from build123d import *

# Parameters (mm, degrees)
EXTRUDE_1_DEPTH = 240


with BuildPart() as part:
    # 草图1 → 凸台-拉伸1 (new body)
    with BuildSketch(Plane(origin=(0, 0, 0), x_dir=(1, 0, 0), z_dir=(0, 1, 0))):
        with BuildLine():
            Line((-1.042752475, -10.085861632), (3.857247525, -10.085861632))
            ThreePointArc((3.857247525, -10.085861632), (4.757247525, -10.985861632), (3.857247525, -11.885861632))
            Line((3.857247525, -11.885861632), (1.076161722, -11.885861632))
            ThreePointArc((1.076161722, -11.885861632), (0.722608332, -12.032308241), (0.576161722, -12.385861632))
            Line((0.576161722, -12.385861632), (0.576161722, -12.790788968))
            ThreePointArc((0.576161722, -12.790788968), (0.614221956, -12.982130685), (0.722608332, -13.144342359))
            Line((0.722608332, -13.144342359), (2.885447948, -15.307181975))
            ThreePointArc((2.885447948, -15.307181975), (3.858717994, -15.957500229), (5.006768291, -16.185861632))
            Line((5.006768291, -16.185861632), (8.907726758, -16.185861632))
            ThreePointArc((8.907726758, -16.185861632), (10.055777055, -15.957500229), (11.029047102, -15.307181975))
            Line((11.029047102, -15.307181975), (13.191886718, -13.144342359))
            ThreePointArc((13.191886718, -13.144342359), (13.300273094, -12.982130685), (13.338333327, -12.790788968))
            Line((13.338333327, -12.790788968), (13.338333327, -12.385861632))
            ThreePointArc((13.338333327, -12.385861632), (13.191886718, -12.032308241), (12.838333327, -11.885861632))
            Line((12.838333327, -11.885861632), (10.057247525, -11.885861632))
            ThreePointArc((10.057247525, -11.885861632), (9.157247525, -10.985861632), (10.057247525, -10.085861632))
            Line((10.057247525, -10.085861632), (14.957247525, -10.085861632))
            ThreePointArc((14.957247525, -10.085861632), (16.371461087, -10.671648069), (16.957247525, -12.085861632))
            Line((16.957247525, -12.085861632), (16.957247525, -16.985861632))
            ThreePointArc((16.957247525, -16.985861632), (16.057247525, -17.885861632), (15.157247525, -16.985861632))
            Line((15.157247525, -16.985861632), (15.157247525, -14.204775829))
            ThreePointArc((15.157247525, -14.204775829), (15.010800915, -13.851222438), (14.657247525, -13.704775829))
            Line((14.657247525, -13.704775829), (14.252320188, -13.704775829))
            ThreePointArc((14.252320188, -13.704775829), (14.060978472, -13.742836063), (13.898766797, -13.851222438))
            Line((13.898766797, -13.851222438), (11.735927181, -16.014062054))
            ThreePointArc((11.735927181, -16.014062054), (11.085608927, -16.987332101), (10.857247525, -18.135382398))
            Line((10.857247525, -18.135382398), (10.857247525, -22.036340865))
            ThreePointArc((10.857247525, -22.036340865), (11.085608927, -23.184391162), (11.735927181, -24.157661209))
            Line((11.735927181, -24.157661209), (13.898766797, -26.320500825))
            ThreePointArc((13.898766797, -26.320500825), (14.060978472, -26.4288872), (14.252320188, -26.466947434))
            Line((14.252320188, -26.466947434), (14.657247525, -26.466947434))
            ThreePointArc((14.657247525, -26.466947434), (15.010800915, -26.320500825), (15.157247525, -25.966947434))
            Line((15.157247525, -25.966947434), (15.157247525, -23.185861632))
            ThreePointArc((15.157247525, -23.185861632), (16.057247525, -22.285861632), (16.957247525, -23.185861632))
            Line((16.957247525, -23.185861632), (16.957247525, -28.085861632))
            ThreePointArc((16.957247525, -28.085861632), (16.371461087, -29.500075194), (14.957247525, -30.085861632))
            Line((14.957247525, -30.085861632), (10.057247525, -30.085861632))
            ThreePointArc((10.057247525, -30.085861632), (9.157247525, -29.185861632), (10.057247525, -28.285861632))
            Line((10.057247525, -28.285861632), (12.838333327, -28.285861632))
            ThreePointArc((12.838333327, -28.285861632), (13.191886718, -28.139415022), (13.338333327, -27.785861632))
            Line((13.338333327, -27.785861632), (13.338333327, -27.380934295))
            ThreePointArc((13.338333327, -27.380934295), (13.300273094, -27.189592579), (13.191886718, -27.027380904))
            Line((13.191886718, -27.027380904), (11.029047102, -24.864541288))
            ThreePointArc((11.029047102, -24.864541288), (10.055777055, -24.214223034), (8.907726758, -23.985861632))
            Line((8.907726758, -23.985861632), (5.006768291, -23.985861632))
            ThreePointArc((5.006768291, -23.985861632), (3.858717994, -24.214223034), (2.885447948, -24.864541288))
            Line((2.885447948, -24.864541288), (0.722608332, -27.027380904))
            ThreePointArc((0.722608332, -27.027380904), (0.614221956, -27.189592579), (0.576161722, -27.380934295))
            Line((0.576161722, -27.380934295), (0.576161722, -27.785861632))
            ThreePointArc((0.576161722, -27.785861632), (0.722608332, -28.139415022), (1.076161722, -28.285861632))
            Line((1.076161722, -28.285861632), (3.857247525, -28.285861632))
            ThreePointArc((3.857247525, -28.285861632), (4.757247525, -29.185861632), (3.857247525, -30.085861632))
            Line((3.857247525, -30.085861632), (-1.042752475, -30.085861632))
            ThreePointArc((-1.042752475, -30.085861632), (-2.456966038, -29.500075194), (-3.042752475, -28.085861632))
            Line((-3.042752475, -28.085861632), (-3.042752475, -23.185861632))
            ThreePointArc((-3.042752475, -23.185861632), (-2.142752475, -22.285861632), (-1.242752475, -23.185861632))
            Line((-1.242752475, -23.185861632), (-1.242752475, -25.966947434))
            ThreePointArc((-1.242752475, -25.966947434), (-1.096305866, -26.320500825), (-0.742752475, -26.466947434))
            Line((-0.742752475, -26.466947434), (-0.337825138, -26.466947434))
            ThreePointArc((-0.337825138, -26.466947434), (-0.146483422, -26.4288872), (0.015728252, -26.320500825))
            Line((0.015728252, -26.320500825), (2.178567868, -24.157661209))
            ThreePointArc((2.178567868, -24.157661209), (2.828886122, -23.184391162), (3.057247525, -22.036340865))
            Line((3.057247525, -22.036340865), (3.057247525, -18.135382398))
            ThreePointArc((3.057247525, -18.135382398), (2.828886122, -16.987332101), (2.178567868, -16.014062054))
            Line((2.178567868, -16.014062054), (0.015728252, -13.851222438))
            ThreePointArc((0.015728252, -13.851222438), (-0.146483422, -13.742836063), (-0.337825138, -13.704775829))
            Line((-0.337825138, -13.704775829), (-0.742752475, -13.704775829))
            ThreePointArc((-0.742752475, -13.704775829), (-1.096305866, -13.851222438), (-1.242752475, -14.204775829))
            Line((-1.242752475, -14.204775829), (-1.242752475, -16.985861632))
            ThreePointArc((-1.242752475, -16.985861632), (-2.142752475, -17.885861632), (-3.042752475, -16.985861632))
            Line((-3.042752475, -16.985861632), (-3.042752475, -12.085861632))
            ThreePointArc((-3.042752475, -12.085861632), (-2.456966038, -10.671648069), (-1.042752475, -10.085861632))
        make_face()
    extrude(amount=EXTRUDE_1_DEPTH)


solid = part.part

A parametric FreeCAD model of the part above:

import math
import FreeCAD as App
import Part
import Sketcher
from FreeCAD import Vector

doc = App.newDocument("Part")
body = doc.addObject("PartDesign::Body", "Body")

# Sketch on XZ plane
sketch1 = body.newObject("Sketcher::SketchObject", "Sketch")
sketch1.AttachmentSupport = (doc.getObject("XZ_Plane"), [""])
sketch1.MapMode = "FlatFace"
sketch1.addGeometry(Part.LineSegment(Vector(3.86, 10.09, 0), Vector(-1.04, 10.09, 0)), False)
sketch1.addGeometry(Part.ArcOfCircle(Part.Circle(Vector(-1.04, 12.09, 0), Vector(0, 0, 1), 2), math.radians(180), math.radians(270)), False)
sketch1.addGeometry(Part.LineSegment(Vector(-3.04, 12.09, 0), Vector(-3.04, 16.99, 0)), False)
sketch1.addGeometry(Part.ArcOfCircle(Part.Circle(Vector(-2.14, 16.99, 0), Vector(0, 0, 1), 0.9), math.radians(0), math.radians(180)), False)
sketch1.addGeometry(Part.LineSegment(Vector(-1.24, 16.99, 0), Vector(-1.24, 14.2, 0)), False)
sketch1.addGeometry(Part.ArcOfCircle(Part.Circle(Vector(-0.74, 14.2, 0), Vector(0, 0, 1), 0.5), math.radians(180), math.radians(270)), False)
sketch1.addGeometry(Part.LineSegment(Vector(-0.74, 13.7, 0), Vector(-0.34, 13.7, 0)), False)
sketch1.addGeometry(Part.ArcOfCircle(Part.Circle(Vector(-0.34, 14.2, 0), Vector(0, 0, 1), 0.5), math.radians(-90), math.radians(-45)), False)
sketch1.addGeometry(Part.LineSegment(Vector(0.02, 13.85, 0), Vector(2.18, 16.01, 0)), False)
sketch1.addGeometry(Part.ArcOfCircle(Part.Circle(Vector(0.06, 18.14, 0), Vector(0, 0, 1), 3), math.radians(-45), math.radians(0)), False)
sketch1.addGeometry(Part.LineSegment(Vector(3.06, 18.14, 0), Vector(3.06, 22.04, 0)), False)
sketch1.addGeometry(Part.ArcOfCircle(Part.Circle(Vector(0.06, 22.04, 0), Vector(0, 0, 1), 3), math.radians(0), math.radians(45)), False)
sketch1.addGeometry(Part.LineSegment(Vector(2.18, 24.16, 0), Vector(0.02, 26.32, 0)), False)
sketch1.addGeometry(Part.ArcOfCircle(Part.Circle(Vector(-0.34, 25.97, 0), Vector(0, 0, 1), 0.5), math.radians(45), math.radians(90)), False)
sketch1.addGeometry(Part.LineSegment(Vector(-0.34, 26.47, 0), Vector(-0.74, 26.47, 0)), False)
sketch1.addGeometry(Part.ArcOfCircle(Part.Circle(Vector(-0.74, 25.97, 0), Vector(0, 0, 1), 0.5), math.radians(90), math.radians(180)), False)
sketch1.addGeometry(Part.LineSegment(Vector(-1.24, 25.97, 0), Vector(-1.24, 23.19, 0)), False)
sketch1.addGeometry(Part.ArcOfCircle(Part.Circle(Vector(-2.14, 23.19, 0), Vector(0, 0, 1), 0.9), math.radians(180), math.radians(360)), False)
sketch1.addGeometry(Part.LineSegment(Vector(-3.04, 23.19, 0), Vector(-3.04, 28.09, 0)), False)
sketch1.addGeometry(Part.ArcOfCircle(Part.Circle(Vector(-1.04, 28.09, 0), Vector(0, 0, 1), 2), math.radians(90), math.radians(180)), False)
sketch1.addGeometry(Part.LineSegment(Vector(-1.04, 30.09, 0), Vector(3.86, 30.09, 0)), False)
sketch1.addGeometry(Part.ArcOfCircle(Part.Circle(Vector(3.86, 29.19, 0), Vector(0, 0, 1), 0.9), math.radians(-90), math.radians(90)), False)
sketch1.addGeometry(Part.LineSegment(Vector(3.86, 28.29, 0), Vector(1.08, 28.29, 0)), False)
sketch1.addGeometry(Part.ArcOfCircle(Part.Circle(Vector(1.08, 27.79, 0), Vector(0, 0, 1), 0.5), math.radians(90), math.radians(180)), False)
sketch1.addGeometry(Part.LineSegment(Vector(0.58, 27.79, 0), Vector(0.58, 27.38, 0)), False)
sketch1.addGeometry(Part.ArcOfCircle(Part.Circle(Vector(1.08, 27.38, 0), Vector(0, 0, 1), 0.5), math.radians(-180), math.radians(-135)), False)
sketch1.addGeometry(Part.LineSegment(Vector(0.72, 27.03, 0), Vector(2.89, 24.86, 0)), False)
sketch1.addGeometry(Part.ArcOfCircle(Part.Circle(Vector(5.01, 26.99, 0), Vector(0, 0, 1), 3), math.radians(-135), math.radians(-90)), False)
sketch1.addGeometry(Part.LineSegment(Vector(5.01, 23.99, 0), Vector(8.91, 23.99, 0)), False)
sketch1.addGeometry(Part.ArcOfCircle(Part.Circle(Vector(8.91, 26.99, 0), Vector(0, 0, 1), 3), math.radians(-90), math.radians(-45)), False)
sketch1.addGeometry(Part.LineSegment(Vector(11.03, 24.86, 0), Vector(13.19, 27.03, 0)), False)
sketch1.addGeometry(Part.ArcOfCircle(Part.Circle(Vector(12.84, 27.38, 0), Vector(0, 0, 1), 0.5), math.radians(-45), math.radians(0)), False)
sketch1.addGeometry(Part.LineSegment(Vector(13.34, 27.38, 0), Vector(13.34, 27.79, 0)), False)
sketch1.addGeometry(Part.ArcOfCircle(Part.Circle(Vector(12.84, 27.79, 0), Vector(0, 0, 1), 0.5), math.radians(0), math.radians(90)), False)
sketch1.addGeometry(Part.LineSegment(Vector(12.84, 28.29, 0), Vector(10.06, 28.29, 0)), False)
sketch1.addGeometry(Part.ArcOfCircle(Part.Circle(Vector(10.06, 29.19, 0), Vector(0, 0, 1), 0.9), math.radians(90), math.radians(270)), False)
sketch1.addGeometry(Part.LineSegment(Vector(10.06, 30.09, 0), Vector(14.96, 30.09, 0)), False)
sketch1.addGeometry(Part.ArcOfCircle(Part.Circle(Vector(14.96, 28.09, 0), Vector(0, 0, 1), 2), math.radians(0), math.radians(90)), False)
sketch1.addGeometry(Part.LineSegment(Vector(16.96, 28.09, 0), Vector(16.96, 23.19, 0)), False)
sketch1.addGeometry(Part.ArcOfCircle(Part.Circle(Vector(16.06, 23.19, 0), Vector(0, 0, 1), 0.9), math.radians(180), math.radians(360)), False)
sketch1.addGeometry(Part.LineSegment(Vector(15.16, 23.19, 0), Vector(15.16, 25.97, 0)), False)
sketch1.addGeometry(Part.ArcOfCircle(Part.Circle(Vector(14.66, 25.97, 0), Vector(0, 0, 1), 0.5), math.radians(0), math.radians(90)), False)
sketch1.addGeometry(Part.LineSegment(Vector(14.66, 26.47, 0), Vector(14.25, 26.47, 0)), False)
sketch1.addGeometry(Part.ArcOfCircle(Part.Circle(Vector(14.25, 25.97, 0), Vector(0, 0, 1), 0.5), math.radians(90), math.radians(135)), False)
sketch1.addGeometry(Part.LineSegment(Vector(13.9, 26.32, 0), Vector(11.74, 24.16, 0)), False)
sketch1.addGeometry(Part.ArcOfCircle(Part.Circle(Vector(13.86, 22.04, 0), Vector(0, 0, 1), 3), math.radians(135), math.radians(180)), False)
sketch1.addGeometry(Part.LineSegment(Vector(10.86, 22.04, 0), Vector(10.86, 18.14, 0)), False)
sketch1.addGeometry(Part.ArcOfCircle(Part.Circle(Vector(13.86, 18.14, 0), Vector(0, 0, 1), 3), math.radians(180), math.radians(225)), False)
sketch1.addGeometry(Part.LineSegment(Vector(11.74, 16.01, 0), Vector(13.9, 13.85, 0)), False)
sketch1.addGeometry(Part.ArcOfCircle(Part.Circle(Vector(14.25, 14.2, 0), Vector(0, 0, 1), 0.5), math.radians(-135), math.radians(-90)), False)
sketch1.addGeometry(Part.LineSegment(Vector(14.25, 13.7, 0), Vector(14.66, 13.7, 0)), False)
sketch1.addGeometry(Part.ArcOfCircle(Part.Circle(Vector(14.66, 14.2, 0), Vector(0, 0, 1), 0.5), math.radians(-90), math.radians(0)), False)
sketch1.addGeometry(Part.LineSegment(Vector(15.16, 14.2, 0), Vector(15.16, 16.99, 0)), False)
sketch1.addGeometry(Part.ArcOfCircle(Part.Circle(Vector(16.06, 16.99, 0), Vector(0, 0, 1), 0.9), math.radians(0), math.radians(180)), False)
sketch1.addGeometry(Part.LineSegment(Vector(16.96, 16.99, 0), Vector(16.96, 12.09, 0)), False)
sketch1.addGeometry(Part.ArcOfCircle(Part.Circle(Vector(14.96, 12.09, 0), Vector(0, 0, 1), 2), math.radians(-90), math.radians(0)), False)
sketch1.addGeometry(Part.LineSegment(Vector(14.96, 10.09, 0), Vector(10.06, 10.09, 0)), False)
sketch1.addGeometry(Part.ArcOfCircle(Part.Circle(Vector(10.06, 10.99, 0), Vector(0, 0, 1), 0.9), math.radians(90), math.radians(270)), False)
sketch1.addGeometry(Part.LineSegment(Vector(10.06, 11.89, 0), Vector(12.84, 11.89, 0)), False)
sketch1.addGeometry(Part.ArcOfCircle(Part.Circle(Vector(12.84, 12.39, 0), Vector(0, 0, 1), 0.5), math.radians(-90), math.radians(0)), False)
sketch1.addGeometry(Part.LineSegment(Vector(13.34, 12.39, 0), Vector(13.34, 12.79, 0)), False)
sketch1.addGeometry(Part.ArcOfCircle(Part.Circle(Vector(12.84, 12.79, 0), Vector(0, 0, 1), 0.5), math.radians(0), math.radians(45)), False)
sketch1.addGeometry(Part.LineSegment(Vector(13.19, 13.14, 0), Vector(11.03, 15.31, 0)), False)
sketch1.addGeometry(Part.ArcOfCircle(Part.Circle(Vector(8.91, 13.19, 0), Vector(0, 0, 1), 3), math.radians(45), math.radians(90)), False)
sketch1.addGeometry(Part.LineSegment(Vector(8.91, 16.19, 0), Vector(5.01, 16.19, 0)), False)
sketch1.addGeometry(Part.ArcOfCircle(Part.Circle(Vector(5.01, 13.19, 0), Vector(0, 0, 1), 3), math.radians(90), math.radians(135)), False)
sketch1.addGeometry(Part.LineSegment(Vector(2.89, 15.31, 0), Vector(0.72, 13.14, 0)), False)
sketch1.addGeometry(Part.ArcOfCircle(Part.Circle(Vector(1.08, 12.79, 0), Vector(0, 0, 1), 0.5), math.radians(135), math.radians(180)), False)
sketch1.addGeometry(Part.LineSegment(Vector(0.58, 12.79, 0), Vector(0.58, 12.39, 0)), False)
sketch1.addGeometry(Part.ArcOfCircle(Part.Circle(Vector(1.08, 12.39, 0), Vector(0, 0, 1), 0.5), math.radians(180), math.radians(270)), False)
sketch1.addGeometry(Part.LineSegment(Vector(1.08, 11.89, 0), Vector(3.86, 11.89, 0)), False)
sketch1.addGeometry(Part.ArcOfCircle(Part.Circle(Vector(3.86, 10.99, 0), Vector(0, 0, 1), 0.9), math.radians(-90), math.radians(90)), False)
sketch1.addConstraint(Sketcher.Constraint("Tangent", 0, 2, 1, 2))
sketch1.addConstraint(Sketcher.Constraint("Tangent", 1, 1, 2, 1))
sketch1.addConstraint(Sketcher.Constraint("Tangent", 2, 2, 3, 2))
sketch1.addConstraint(Sketcher.Constraint("Tangent", 3, 1, 4, 1))
sketch1.addConstraint(Sketcher.Constraint("Tangent", 4, 2, 5, 1))
sketch1.addConstraint(Sketcher.Constraint("Tangent", 5, 2, 6, 1))
sketch1.addConstraint(Sketcher.Constraint("Tangent", 6, 2, 7, 1))
sketch1.addConstraint(Sketcher.Constraint("Tangent", 7, 2, 8, 1))
sketch1.addConstraint(Sketcher.Constraint("Tangent", 8, 2, 9, 1))
sketch1.addConstraint(Sketcher.Constraint("Tangent", 9, 2, 10, 1))
sketch1.addConstraint(Sketcher.Constraint("Tangent", 10, 2, 11, 1))
sketch1.addConstraint(Sketcher.Constraint("Tangent", 11, 2, 12, 1))
sketch1.addConstraint(Sketcher.Constraint("Tangent", 12, 2, 13, 1))
sketch1.addConstraint(Sketcher.Constraint("Tangent", 13, 2, 14, 1))
sketch1.addConstraint(Sketcher.Constraint("Tangent", 14, 2, 15, 1))
sketch1.addConstraint(Sketcher.Constraint("Tangent", 15, 2, 16, 1))
sketch1.addConstraint(Sketcher.Constraint("Tangent", 16, 2, 17, 2))
sketch1.addConstraint(Sketcher.Constraint("Tangent", 17, 1, 18, 1))
sketch1.addConstraint(Sketcher.Constraint("Tangent", 18, 2, 19, 2))
sketch1.addConstraint(Sketcher.Constraint("Tangent", 19, 1, 20, 1))
sketch1.addConstraint(Sketcher.Constraint("Tangent", 20, 2, 21, 2))
sketch1.addConstraint(Sketcher.Constraint("Tangent", 21, 1, 22, 1))
sketch1.addConstraint(Sketcher.Constraint("Tangent", 22, 2, 23, 1))
sketch1.addConstraint(Sketcher.Constraint("Tangent", 23, 2, 24, 1))
sketch1.addConstraint(Sketcher.Constraint("Tangent", 24, 2, 25, 1))
sketch1.addConstraint(Sketcher.Constraint("Tangent", 25, 2, 26, 1))
sketch1.addConstraint(Sketcher.Constraint("Tangent", 26, 2, 27, 1))
sketch1.addConstraint(Sketcher.Constraint("Tangent", 27, 2, 28, 1))
sketch1.addConstraint(Sketcher.Constraint("Tangent", 28, 2, 29, 1))
sketch1.addConstraint(Sketcher.Constraint("Tangent", 29, 2, 30, 1))
sketch1.addConstraint(Sketcher.Constraint("Tangent", 30, 2, 31, 1))
sketch1.addConstraint(Sketcher.Constraint("Tangent", 31, 2, 32, 1))
sketch1.addConstraint(Sketcher.Constraint("Tangent", 32, 2, 33, 1))
sketch1.addConstraint(Sketcher.Constraint("Tangent", 33, 2, 34, 1))
sketch1.addConstraint(Sketcher.Constraint("Tangent", 34, 2, 35, 2))
sketch1.addConstraint(Sketcher.Constraint("Tangent", 35, 1, 36, 1))
sketch1.addConstraint(Sketcher.Constraint("Tangent", 36, 2, 37, 2))
sketch1.addConstraint(Sketcher.Constraint("Tangent", 37, 1, 38, 1))
sketch1.addConstraint(Sketcher.Constraint("Tangent", 38, 2, 39, 2))
sketch1.addConstraint(Sketcher.Constraint("Tangent", 39, 1, 40, 1))
sketch1.addConstraint(Sketcher.Constraint("Tangent", 40, 2, 41, 1))
sketch1.addConstraint(Sketcher.Constraint("Tangent", 41, 2, 42, 1))
sketch1.addConstraint(Sketcher.Constraint("Tangent", 42, 2, 43, 1))
sketch1.addConstraint(Sketcher.Constraint("Tangent", 43, 2, 44, 1))
sketch1.addConstraint(Sketcher.Constraint("Tangent", 44, 2, 45, 1))
sketch1.addConstraint(Sketcher.Constraint("Tangent", 45, 2, 46, 1))
sketch1.addConstraint(Sketcher.Constraint("Tangent", 46, 2, 47, 1))
sketch1.addConstraint(Sketcher.Constraint("Tangent", 47, 2, 48, 1))
sketch1.addConstraint(Sketcher.Constraint("Tangent", 48, 2, 49, 1))
sketch1.addConstraint(Sketcher.Constraint("Tangent", 49, 2, 50, 1))
sketch1.addConstraint(Sketcher.Constraint("Tangent", 50, 2, 51, 1))
sketch1.addConstraint(Sketcher.Constraint("Tangent", 51, 2, 52, 1))
sketch1.addConstraint(Sketcher.Constraint("Tangent", 52, 2, 53, 2))
sketch1.addConstraint(Sketcher.Constraint("Tangent", 53, 1, 54, 1))
sketch1.addConstraint(Sketcher.Constraint("Tangent", 54, 2, 55, 2))
sketch1.addConstraint(Sketcher.Constraint("Tangent", 55, 1, 56, 1))
sketch1.addConstraint(Sketcher.Constraint("Tangent", 56, 2, 57, 2))
sketch1.addConstraint(Sketcher.Constraint("Tangent", 57, 1, 58, 1))
sketch1.addConstraint(Sketcher.Constraint("Tangent", 58, 2, 59, 1))
sketch1.addConstraint(Sketcher.Constraint("Tangent", 59, 2, 60, 1))
sketch1.addConstraint(Sketcher.Constraint("Tangent", 60, 2, 61, 1))
sketch1.addConstraint(Sketcher.Constraint("Tangent", 61, 2, 62, 1))
sketch1.addConstraint(Sketcher.Constraint("Tangent", 62, 2, 63, 1))
sketch1.addConstraint(Sketcher.Constraint("Tangent", 63, 2, 64, 1))
sketch1.addConstraint(Sketcher.Constraint("Tangent", 64, 2, 65, 1))
sketch1.addConstraint(Sketcher.Constraint("Tangent", 65, 2, 66, 1))
sketch1.addConstraint(Sketcher.Constraint("Tangent", 66, 2, 67, 1))
sketch1.addConstraint(Sketcher.Constraint("Tangent", 67, 2, 68, 1))
sketch1.addConstraint(Sketcher.Constraint("Tangent", 68, 2, 69, 1))
sketch1.addConstraint(Sketcher.Constraint("Tangent", 69, 2, 70, 1))
sketch1.addConstraint(Sketcher.Constraint("Tangent", 70, 2, 71, 2))
sketch1.addConstraint(Sketcher.Constraint("Tangent", 71, 1, 0, 1))
sketch1.addConstraint(Sketcher.Constraint("Horizontal", 0))
sketch1.addConstraint(Sketcher.Constraint("Vertical", 2))
sketch1.addConstraint(Sketcher.Constraint("Vertical", 4))
sketch1.addConstraint(Sketcher.Constraint("Horizontal", 6))
sketch1.addConstraint(Sketcher.Constraint("Vertical", 10))
sketch1.addConstraint(Sketcher.Constraint("Horizontal", 14))
sketch1.addConstraint(Sketcher.Constraint("Vertical", 16))
sketch1.addConstraint(Sketcher.Constraint("Vertical", 18))
sketch1.addConstraint(Sketcher.Constraint("Horizontal", 20))
sketch1.addConstraint(Sketcher.Constraint("Horizontal", 22))
sketch1.addConstraint(Sketcher.Constraint("Vertical", 24))
sketch1.addConstraint(Sketcher.Constraint("Horizontal", 28))
sketch1.addConstraint(Sketcher.Constraint("Vertical", 32))
sketch1.addConstraint(Sketcher.Constraint("Horizontal", 34))
sketch1.addConstraint(Sketcher.Constraint("Horizontal", 36))
sketch1.addConstraint(Sketcher.Constraint("Vertical", 38))
sketch1.addConstraint(Sketcher.Constraint("Vertical", 40))
sketch1.addConstraint(Sketcher.Constraint("Horizontal", 42))
sketch1.addConstraint(Sketcher.Constraint("Vertical", 46))
sketch1.addConstraint(Sketcher.Constraint("Horizontal", 50))
sketch1.addConstraint(Sketcher.Constraint("Vertical", 52))
sketch1.addConstraint(Sketcher.Constraint("Vertical", 54))
sketch1.addConstraint(Sketcher.Constraint("Horizontal", 56))
sketch1.addConstraint(Sketcher.Constraint("Horizontal", 58))
sketch1.addConstraint(Sketcher.Constraint("Vertical", 60))
sketch1.addConstraint(Sketcher.Constraint("Horizontal", 64))
sketch1.addConstraint(Sketcher.Constraint("Vertical", 68))
sketch1.addConstraint(Sketcher.Constraint("Horizontal", 70))
sketch1.addConstraint(Sketcher.Constraint("Equal", 5, 7))
sketch1.addConstraint(Sketcher.Constraint("Equal", 9, 11))
sketch1.addConstraint(Sketcher.Constraint("Equal", 7, 13))
sketch1.addConstraint(Sketcher.Constraint("Equal", 13, 15))
sketch1.addConstraint(Sketcher.Constraint("Equal", 3, 17))
sketch1.addConstraint(Sketcher.Constraint("Equal", 1, 19))
sketch1.addConstraint(Sketcher.Constraint("Equal", 17, 21))
sketch1.addConstraint(Sketcher.Constraint("Equal", 15, 23))
sketch1.addConstraint(Sketcher.Constraint("Equal", 23, 25))
sketch1.addConstraint(Sketcher.Constraint("Equal", 11, 27))
sketch1.addConstraint(Sketcher.Constraint("Equal", 27, 29))
sketch1.addConstraint(Sketcher.Constraint("Equal", 25, 31))
sketch1.addConstraint(Sketcher.Constraint("Equal", 31, 33))
sketch1.addConstraint(Sketcher.Constraint("Equal", 21, 35))
sketch1.addConstraint(Sketcher.Constraint("Equal", 19, 37))
sketch1.addConstraint(Sketcher.Constraint("Equal", 35, 39))
sketch1.addConstraint(Sketcher.Constraint("Equal", 33, 41))
sketch1.addConstraint(Sketcher.Constraint("Equal", 41, 43))
sketch1.addConstraint(Sketcher.Constraint("Equal", 29, 45))
sketch1.addConstraint(Sketcher.Constraint("Equal", 45, 47))
sketch1.addConstraint(Sketcher.Constraint("Equal", 43, 49))
sketch1.addConstraint(Sketcher.Constraint("Equal", 49, 51))
sketch1.addConstraint(Sketcher.Constraint("Equal", 39, 53))
sketch1.addConstraint(Sketcher.Constraint("Equal", 37, 55))
sketch1.addConstraint(Sketcher.Constraint("Equal", 53, 57))
sketch1.addConstraint(Sketcher.Constraint("Equal", 51, 59))
sketch1.addConstraint(Sketcher.Constraint("Equal", 59, 61))
sketch1.addConstraint(Sketcher.Constraint("Equal", 47, 63))
sketch1.addConstraint(Sketcher.Constraint("Equal", 63, 65))
sketch1.addConstraint(Sketcher.Constraint("Equal", 61, 67))
sketch1.addConstraint(Sketcher.Constraint("Equal", 67, 69))
sketch1.addConstraint(Sketcher.Constraint("Equal", 57, 71))
sketch1.addConstraint(Sketcher.Constraint("Perpendicular", 8, 12))
sketch1.addConstraint(Sketcher.Constraint("Parallel", 12, 26))
sketch1.addConstraint(Sketcher.Constraint("Perpendicular", 26, 30))
sketch1.addConstraint(Sketcher.Constraint("Parallel", 30, 44))
sketch1.addConstraint(Sketcher.Constraint("Perpendicular", 44, 48))
sketch1.addConstraint(Sketcher.Constraint("Parallel", 48, 62))
sketch1.addConstraint(Sketcher.Constraint("Perpendicular", 62, 66))
sketch1.addConstraint(Sketcher.Constraint("Horizontal", 25, 3, 31, 3))
sketch1.addConstraint(Sketcher.Constraint("Horizontal", 23, 3, 33, 3))
sketch1.addConstraint(Sketcher.Constraint("Horizontal", 17, 3, 39, 3))
sketch1.addConstraint(Sketcher.Constraint("Horizontal", 15, 3, 41, 3))
sketch1.addConstraint(Sketcher.Constraint("Horizontal", 11, 3, 45, 3))
sketch1.addConstraint(Sketcher.Constraint("Horizontal", 9, 3, 47, 3))
sketch1.addConstraint(Sketcher.Constraint("Horizontal", 7, 3, 49, 3))
sketch1.addConstraint(Sketcher.Constraint("Horizontal", 3, 3, 53, 3))
sketch1.addConstraint(Sketcher.Constraint("Horizontal", 1, 3, 55, 3))
sketch1.addConstraint(Sketcher.Constraint("Horizontal", 61, 3, 67, 3))
sketch1.addConstraint(Sketcher.Constraint("Horizontal", 26, 2, 29, 2))
sketch1.addConstraint(Sketcher.Constraint("Vertical", 7, 3, 13, 3))
sketch1.addConstraint(Sketcher.Constraint("Vertical", 5, 3, 15, 3))
sketch1.addConstraint(Sketcher.Constraint("Vertical", 41, 3, 51, 3))
sketch1.addConstraint(Sketcher.Constraint("Vertical", 35, 3, 57, 3))
sketch1.addConstraint(Sketcher.Constraint("Vertical", 33, 3, 59, 3))
sketch1.addConstraint(Sketcher.Constraint("Vertical", 29, 3, 63, 3))
sketch1.addConstraint(Sketcher.Constraint("Vertical", 27, 3, 65, 3))
sketch1.addConstraint(Sketcher.Constraint("Vertical", 21, 3, 71, 3))
sketch1.addConstraint(Sketcher.Constraint("Equal", 22, 34))
sketch1.addConstraint(Sketcher.Constraint("Equal", 20, 36))
sketch1.addConstraint(Sketcher.Constraint("Equal", 14, 42))
sketch1.addConstraint(Sketcher.Constraint("Equal", 56, 2))
sketch1.addConstraint(Sketcher.Constraint("Equal", 70, 4))
sketch1.addConstraint(Sketcher.Constraint("Equal", 64, 10))
sketch1.addConstraint(Sketcher.Constraint("Equal", 4, 16))
sketch1.addConstraint(Sketcher.Constraint("Equal", 2, 18))
sketch1.addConstraint(Sketcher.Constraint("Equal", 50, 24))
sketch1.addConstraint(Sketcher.Constraint("Equal", 32, 60))
sketch1.addConstraint(Sketcher.Constraint("Equal", 12, 26))
sketch1.addConstraint(Sketcher.Constraint("Radius", 1, 2.0))
sketch1.addConstraint(Sketcher.Constraint("Radius", 9, 3.0))
sketch1.addConstraint(Sketcher.Constraint("Radius", 3, 0.9))
sketch1.addConstraint(Sketcher.Constraint("Radius", 5, 0.5))
sketch1.addConstraint(Sketcher.Constraint("DistanceX", 0, 2, 0, 1, 4.9))
sketch1.addConstraint(Sketcher.Constraint("DistanceX", 28, 1, 28, 2, 3.900958))
sketch1.addConstraint(Sketcher.Constraint("DistanceY", -1, 1, 12, 2, 26.320501))
sketch1.addConstraint(Sketcher.Constraint("DistanceX", 6, 1, 6, 2, 0.404927))
sketch1.addConstraint(Sketcher.Constraint("DistanceX", 22, 2, 22, 1, 2.781086))
sketch1.addConstraint(Sketcher.Constraint("DistanceY", -1, 1, 1, 3, 12.085862))
sketch1.addConstraint(Sketcher.Constraint("DistanceX", -1, 1, 23, 3, 1.076162))
pad1 = body.newObject("PartDesign::Pad", "Pad")
pad1.Profile = sketch1
pad1.Length = 240
pad1.Reversed = True

doc.recompute()
